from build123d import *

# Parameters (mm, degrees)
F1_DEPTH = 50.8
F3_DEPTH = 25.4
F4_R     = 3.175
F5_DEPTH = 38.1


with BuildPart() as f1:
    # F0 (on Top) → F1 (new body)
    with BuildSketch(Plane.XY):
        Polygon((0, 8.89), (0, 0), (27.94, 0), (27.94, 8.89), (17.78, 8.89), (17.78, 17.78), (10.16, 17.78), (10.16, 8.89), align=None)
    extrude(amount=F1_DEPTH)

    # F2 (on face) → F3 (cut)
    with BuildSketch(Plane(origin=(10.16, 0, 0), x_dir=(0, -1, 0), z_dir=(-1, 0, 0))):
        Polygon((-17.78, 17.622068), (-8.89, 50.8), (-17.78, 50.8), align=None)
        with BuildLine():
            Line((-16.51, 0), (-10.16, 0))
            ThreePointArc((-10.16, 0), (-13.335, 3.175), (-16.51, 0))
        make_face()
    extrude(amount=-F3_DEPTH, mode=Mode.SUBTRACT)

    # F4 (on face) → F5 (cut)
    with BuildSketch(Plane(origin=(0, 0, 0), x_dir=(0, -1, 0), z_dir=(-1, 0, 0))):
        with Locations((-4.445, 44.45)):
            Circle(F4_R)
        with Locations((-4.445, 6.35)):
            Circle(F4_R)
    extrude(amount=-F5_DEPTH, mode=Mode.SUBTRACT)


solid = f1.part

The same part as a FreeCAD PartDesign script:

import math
import FreeCAD as App
import Part
import Sketcher
Q = App.Units.Quantity


def add_polygon(sketch, points):
    """Adds a closed chain of lines whose ends are joined by coincident constraints."""
    first, n = sketch.GeometryCount, len(points)
    for a, b in zip(points, points[1:] + points[:1]):
        sketch.addGeometry(Part.LineSegment(App.Vector(*a, 0), App.Vector(*b, 0)), False)
    for i in range(n):
        sketch.addConstraint(Sketcher.Constraint("Coincident", first + i, 2, first + (i + 1) % n, 1))

doc = App.newDocument("Part")
body = doc.addObject("PartDesign::Body", "Body")

sketch1 = body.newObject("Sketcher::SketchObject", "Sketch")
sketch1.AttachmentSupport = (doc.getObject("XY_Plane"), [""])
sketch1.MapMode = "FlatFace"
add_polygon(sketch1, [(0, 9), (0, 0), (28, 0), (28, 9), (18, 9), (18, 18), (10, 18), (10, 9)])
sketch1.addConstraint(Sketcher.Constraint("Vertical", 0))
sketch1.addConstraint(Sketcher.Constraint("Horizontal", 1))
sketch1.addConstraint(Sketcher.Constraint("Vertical", 2))
sketch1.addConstraint(Sketcher.Constraint("Horizontal", 3))
sketch1.addConstraint(Sketcher.Constraint("Vertical", 4))
sketch1.addConstraint(Sketcher.Constraint("Horizontal", 5))
sketch1.addConstraint(Sketcher.Constraint("Vertical", 6))
sketch1.addConstraint(Sketcher.Constraint("Horizontal", 7))
sketch1.addConstraint(Sketcher.Constraint("Coincident", 0, 2, -1, 1))
sketch1.addConstraint(Sketcher.Constraint("Horizontal", 3, 2, 6, 2))
sketch1.addConstraint(Sketcher.Constraint("Equal", 3, 7))
sketch1.addConstraint(Sketcher.Constraint("Equal", 2, 4))
sketch1.addConstraint(Sketcher.Constraint("DistanceX", 1, 1, 1, 2, Q("1.1 in")))
sketch1.addConstraint(Sketcher.Constraint("DistanceX", 3, 2, 3, 1, Q("0.4 in")))
sketch1.addConstraint(Sketcher.Constraint("DistanceY", 0, 2, 0, 1, Q("0.35 in")))
pad1 = body.newObject("PartDesign::Pad", "Pad")
pad1.Profile = sketch1
pad1.Length = Q("2 in")

sketch2 = body.newObject("Sketcher::SketchObject", "Sketch001")
sketch2.AttachmentSupport = (doc.getObject("YZ_Plane"), [""])
sketch2.MapMode = "FlatFace"
sketch2.AttachmentOffset = App.Placement(App.Vector(0, 0, 0.4 * 25.4), App.Rotation())
add_polygon(sketch2, [(17.8, 17.6), (8.9, 50.8), (17.8, 50.8)])
sketch2.addGeometry(Part.LineSegment(App.Vector(16.5, 0, 0), App.Vector(10.2, 0, 0)), False)
sketch2.addGeometry(Part.ArcOfCircle(Part.Circle(App.Vector(13.3, 0, 0), App.Vector(0, 0, 1), 3.2), math.radians(0), math.radians(180)), False)
sketch2.addConstraint(Sketcher.Constraint("Coincident", 3, 1, 4, 1))
sketch2.addConstraint(Sketcher.Constraint("Coincident", 4, 2, 3, 2))
sketch2.addConstraint(Sketcher.Constraint("Horizontal", 1))
sketch2.addConstraint(Sketcher.Constraint("Vertical", 2))
sketch2.addConstraint(Sketcher.Constraint("Horizontal", 3))
sketch2.addConstraint(Sketcher.Constraint("PointOnObject", 4, 3, -1))
sketch2.addConstraint(Sketcher.Constraint("PointOnObject", 3, 1, -1))
sketch2.addConstraint(Sketcher.Constraint("DistanceY", -1, 1, 0, 2, Q("2 in")))
sketch2.addConstraint(Sketcher.Constraint("Angle", 0, Q("105 deg")))
sketch2.addConstraint(Sketcher.Constraint("Radius", 4, Q("0.125 in")))
sketch2.addConstraint(Sketcher.Constraint("DistanceX", 1, 1, 1, 2, Q("0.35 in")))
sketch2.addConstraint(Sketcher.Constraint("DistanceX", -1, 1, 1, 2, Q("0.7 in")))
sketch2.addConstraint(Sketcher.Constraint("DistanceX", -1, 1, 4, 2, Q("0.4 in")))
pocket1 = body.newObject("PartDesign::Pocket", "Pocket")
pocket1.Profile = sketch2
pocket1.Length = Q("1 in")
pocket1.Reversed = True

sketch3 = body.newObject("Sketcher::SketchObject", "Sketch002")
sketch3.AttachmentSupport = (doc.getObject("YZ_Plane"), [""])
sketch3.MapMode = "FlatFace"
sketch3.addGeometry(Part.Circle(App.Vector(4.4, 44.5, 0), App.Vector(0, 0, 1), 3.2), False)
sketch3.addGeometry(Part.Circle(App.Vector(4.4, 6.3, 0), App.Vector(0, 0, 1), 3.2), False)
sketch3.addConstraint(Sketcher.Constraint("Equal", 0, 1))
sketch3.addConstraint(Sketcher.Constraint("Vertical", 0, 3, 1, 3))
sketch3.addConstraint(Sketcher.Constraint("Diameter", 0, Q("0.25 in")))
sketch3.addConstraint(Sketcher.Constraint("DistanceY", 1, 3, 0, 3, Q("1.5 in")))
sketch3.addConstraint(Sketcher.Constraint("DistanceY", -1, 1, 0, 3, Q("1.75 in")))
sketch3.addConstraint(Sketcher.Constraint("DistanceX", -1, 1, 0, 3, Q("0.175 in")))
pocket2 = body.newObject("PartDesign::Pocket", "Pocket001")
pocket2.Profile = sketch3
pocket2.Length = Q("1.5 in")
pocket2.Reversed = True

doc.recompute()
